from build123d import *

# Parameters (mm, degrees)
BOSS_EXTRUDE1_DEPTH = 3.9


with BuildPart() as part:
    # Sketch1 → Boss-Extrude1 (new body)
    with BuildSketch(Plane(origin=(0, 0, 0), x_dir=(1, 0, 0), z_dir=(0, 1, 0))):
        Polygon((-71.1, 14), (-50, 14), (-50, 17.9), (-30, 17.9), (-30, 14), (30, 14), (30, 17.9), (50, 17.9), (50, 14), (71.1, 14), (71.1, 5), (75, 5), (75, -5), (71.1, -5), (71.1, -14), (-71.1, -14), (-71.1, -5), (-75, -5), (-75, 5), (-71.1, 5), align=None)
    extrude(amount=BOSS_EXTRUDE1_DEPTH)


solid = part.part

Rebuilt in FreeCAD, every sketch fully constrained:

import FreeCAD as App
import Part
import Sketcher
Q = App.Units.Quantity

doc = App.newDocument("Part")
body = doc.addObject("PartDesign::Body", "Body")

sketch1 = doc.addObject("Sketcher::SketchObject", "Sketch")
body.addObject(sketch1)
sketch1.AttachmentSupport = (doc.XZ_Plane, [""])
sketch1.MapMode = "FlatFace"
sketch1.addGeometry(Part.LineSegment(App.Vector(-50, -14, 0), App.Vector(-71.1, -14, 0)), False)
sketch1.addGeometry(Part.LineSegment(App.Vector(-71.1, -14, 0), App.Vector(-71.1, -5, 0)), False)
sketch1.addGeometry(Part.LineSegment(App.Vector(-71.1, -5, 0), App.Vector(-75, -5, 0)), False)
sketch1.addGeometry(Part.LineSegment(App.Vector(-75, -5, 0), App.Vector(-75, 5, 0)), False)
sketch1.addGeometry(Part.LineSegment(App.Vector(-75, 5, 0), App.Vector(-71.1, 5, 0)), False)
sketch1.addGeometry(Part.LineSegment(App.Vector(-71.1, 5, 0), App.Vector(-71.1, 14, 0)), False)
sketch1.addGeometry(Part.LineSegment(App.Vector(-71.1, 14, 0), App.Vector(71.1, 14, 0)), False)
sketch1.addGeometry(Part.LineSegment(App.Vector(71.1, 14, 0), App.Vector(71.1, 5, 0)), False)
sketch1.addGeometry(Part.LineSegment(App.Vector(71.1, 5, 0), App.Vector(75, 5, 0)), False)
sketch1.addGeometry(Part.LineSegment(App.Vector(75, 5, 0), App.Vector(75, -5, 0)), False)
sketch1.addGeometry(Part.LineSegment(App.Vector(75, -5, 0), App.Vector(71.1, -5, 0)), False)
sketch1.addGeometry(Part.LineSegment(App.Vector(71.1, -5, 0), App.Vector(71.1, -14, 0)), False)
sketch1.addGeometry(Part.LineSegment(App.Vector(71.1, -14, 0), App.Vector(50, -14, 0)), False)
sketch1.addGeometry(Part.LineSegment(App.Vector(50, -14, 0), App.Vector(50, -17.9, 0)), False)
sketch1.addGeometry(Part.LineSegment(App.Vector(50, -17.9, 0), App.Vector(30, -17.9, 0)), False)
sketch1.addGeometry(Part.LineSegment(App.Vector(30, -17.9, 0), App.Vector(30, -14, 0)), False)
sketch1.addGeometry(Part.LineSegment(App.Vector(30, -14, 0), App.Vector(-30, -14, 0)), False)
sketch1.addGeometry(Part.LineSegment(App.Vector(-30, -14, 0), App.Vector(-30, -17.9, 0)), False)
sketch1.addGeometry(Part.LineSegment(App.Vector(-30, -17.9, 0), App.Vector(-50, -17.9, 0)), False)
sketch1.addGeometry(Part.LineSegment(App.Vector(-50, -17.9, 0), App.Vector(-50, -14, 0)), False)
sketch1.addConstraint(Sketcher.Constraint("Coincident", 0, 2, 1, 1))
sketch1.addConstraint(Sketcher.Constraint("Coincident", 1, 2, 2, 1))
sketch1.addConstraint(Sketcher.Constraint("Coincident", 2, 2, 3, 1))
sketch1.addConstraint(Sketcher.Constraint("Coincident", 3, 2, 4, 1))
sketch1.addConstraint(Sketcher.Constraint("Coincident", 4, 2, 5, 1))
sketch1.addConstraint(Sketcher.Constraint("Coincident", 5, 2, 6, 1))
sketch1.addConstraint(Sketcher.Constraint("Coincident", 6, 2, 7, 1))
sketch1.addConstraint(Sketcher.Constraint("Coincident", 7, 2, 8, 1))
sketch1.addConstraint(Sketcher.Constraint("Coincident", 8, 2, 9, 1))
sketch1.addConstraint(Sketcher.Constraint("Coincident", 9, 2, 10, 1))
sketch1.addConstraint(Sketcher.Constraint("Coincident", 10, 2, 11, 1))
sketch1.addConstraint(Sketcher.Constraint("Coincident", 11, 2, 12, 1))
sketch1.addConstraint(Sketcher.Constraint("Coincident", 12, 2, 13, 1))
sketch1.addConstraint(Sketcher.Constraint("Coincident", 13, 2, 14, 1))
sketch1.addConstraint(Sketcher.Constraint("Coincident", 14, 2, 15, 1))
sketch1.addConstraint(Sketcher.Constraint("Coincident", 15, 2, 16, 1))
sketch1.addConstraint(Sketcher.Constraint("Coincident", 16, 2, 17, 1))
sketch1.addConstraint(Sketcher.Constraint("Coincident", 17, 2, 18, 1))
sketch1.addConstraint(Sketcher.Constraint("Coincident", 18, 2, 19, 1))
sketch1.addConstraint(Sketcher.Constraint("Coincident", 19, 2, 0, 1))
sketch1.addConstraint(Sketcher.Constraint("Horizontal", 0))
sketch1.addConstraint(Sketcher.Constraint("Vertical", 1))
sketch1.addConstraint(Sketcher.Constraint("Horizontal", 2))
sketch1.addConstraint(Sketcher.Constraint("Vertical", 3))
sketch1.addConstraint(Sketcher.Constraint("Horizontal", 4))
sketch1.addConstraint(Sketcher.Constraint("Vertical", 5))
sketch1.addConstraint(Sketcher.Constraint("Horizontal", 6))
sketch1.addConstraint(Sketcher.Constraint("Vertical", 7))
sketch1.addConstraint(Sketcher.Constraint("Horizontal", 8))
sketch1.addConstraint(Sketcher.Constraint("Vertical", 9))
sketch1.addConstraint(Sketcher.Constraint("Horizontal", 10))
sketch1.addConstraint(Sketcher.Constraint("Vertical", 11))
sketch1.addConstraint(Sketcher.Constraint("Horizontal", 12))
sketch1.addConstraint(Sketcher.Constraint("Vertical", 13))
sketch1.addConstraint(Sketcher.Constraint("Horizontal", 14))
sketch1.addConstraint(Sketcher.Constraint("Vertical", 15))
sketch1.addConstraint(Sketcher.Constraint("Horizontal", 16))
sketch1.addConstraint(Sketcher.Constraint("Vertical", 17))
sketch1.addConstraint(Sketcher.Constraint("Horizontal", 18))
sketch1.addConstraint(Sketcher.Constraint("Vertical", 19))
sketch1.addConstraint(Sketcher.Constraint("Symmetric", 0, 2, 6, 2, -1, 1))
sketch1.addConstraint(Sketcher.Constraint("Symmetric", 2, 2, 8, 2, -1, 1))
sketch1.addConstraint(Sketcher.Constraint("Symmetric", 4, 2, 10, 2, -1, 1))
sketch1.addConstraint(Sketcher.Constraint("Symmetric", 4, 2, 7, 2, -2))
sketch1.addConstraint(Sketcher.Constraint("Symmetric", 14, 2, 17, 2, -2))
sketch1.addConstraint(Sketcher.Constraint("Symmetric", 12, 2, 19, 2, -2))
sketch1.addConstraint(Sketcher.Constraint("Horizontal", 12, 2, 15, 2))
sketch1.addConstraint(Sketcher.Constraint("Equal", 10, 13))
sketch1.addConstraint(Sketcher.Constraint("DistanceX", 14, 2, 14, 1, Q("20 mm")))
sketch1.addConstraint(Sketcher.Constraint("DistanceX", 16, 2, 16, 1, Q("60 mm")))
sketch1.addConstraint(Sketcher.Constraint("DistanceY", 1, 1, 1, 2, Q("9 mm")))
sketch1.addConstraint(Sketcher.Constraint("DistanceY", 3, 1, 3, 2, Q("10 mm")))
sketch1.addConstraint(Sketcher.Constraint("DistanceX", 0, 2, 0, 1, Q("21.1 mm")))
sketch1.addConstraint(Sketcher.Constraint("DistanceX", 2, 2, 2, 1, Q("3.9 mm")))
pad1 = doc.addObject("PartDesign::Pad", "Pad")
body.addObject(pad1)
pad1.Profile = sketch1
pad1.Length = 3.9
pad1.Reversed = True

doc.recompute()
